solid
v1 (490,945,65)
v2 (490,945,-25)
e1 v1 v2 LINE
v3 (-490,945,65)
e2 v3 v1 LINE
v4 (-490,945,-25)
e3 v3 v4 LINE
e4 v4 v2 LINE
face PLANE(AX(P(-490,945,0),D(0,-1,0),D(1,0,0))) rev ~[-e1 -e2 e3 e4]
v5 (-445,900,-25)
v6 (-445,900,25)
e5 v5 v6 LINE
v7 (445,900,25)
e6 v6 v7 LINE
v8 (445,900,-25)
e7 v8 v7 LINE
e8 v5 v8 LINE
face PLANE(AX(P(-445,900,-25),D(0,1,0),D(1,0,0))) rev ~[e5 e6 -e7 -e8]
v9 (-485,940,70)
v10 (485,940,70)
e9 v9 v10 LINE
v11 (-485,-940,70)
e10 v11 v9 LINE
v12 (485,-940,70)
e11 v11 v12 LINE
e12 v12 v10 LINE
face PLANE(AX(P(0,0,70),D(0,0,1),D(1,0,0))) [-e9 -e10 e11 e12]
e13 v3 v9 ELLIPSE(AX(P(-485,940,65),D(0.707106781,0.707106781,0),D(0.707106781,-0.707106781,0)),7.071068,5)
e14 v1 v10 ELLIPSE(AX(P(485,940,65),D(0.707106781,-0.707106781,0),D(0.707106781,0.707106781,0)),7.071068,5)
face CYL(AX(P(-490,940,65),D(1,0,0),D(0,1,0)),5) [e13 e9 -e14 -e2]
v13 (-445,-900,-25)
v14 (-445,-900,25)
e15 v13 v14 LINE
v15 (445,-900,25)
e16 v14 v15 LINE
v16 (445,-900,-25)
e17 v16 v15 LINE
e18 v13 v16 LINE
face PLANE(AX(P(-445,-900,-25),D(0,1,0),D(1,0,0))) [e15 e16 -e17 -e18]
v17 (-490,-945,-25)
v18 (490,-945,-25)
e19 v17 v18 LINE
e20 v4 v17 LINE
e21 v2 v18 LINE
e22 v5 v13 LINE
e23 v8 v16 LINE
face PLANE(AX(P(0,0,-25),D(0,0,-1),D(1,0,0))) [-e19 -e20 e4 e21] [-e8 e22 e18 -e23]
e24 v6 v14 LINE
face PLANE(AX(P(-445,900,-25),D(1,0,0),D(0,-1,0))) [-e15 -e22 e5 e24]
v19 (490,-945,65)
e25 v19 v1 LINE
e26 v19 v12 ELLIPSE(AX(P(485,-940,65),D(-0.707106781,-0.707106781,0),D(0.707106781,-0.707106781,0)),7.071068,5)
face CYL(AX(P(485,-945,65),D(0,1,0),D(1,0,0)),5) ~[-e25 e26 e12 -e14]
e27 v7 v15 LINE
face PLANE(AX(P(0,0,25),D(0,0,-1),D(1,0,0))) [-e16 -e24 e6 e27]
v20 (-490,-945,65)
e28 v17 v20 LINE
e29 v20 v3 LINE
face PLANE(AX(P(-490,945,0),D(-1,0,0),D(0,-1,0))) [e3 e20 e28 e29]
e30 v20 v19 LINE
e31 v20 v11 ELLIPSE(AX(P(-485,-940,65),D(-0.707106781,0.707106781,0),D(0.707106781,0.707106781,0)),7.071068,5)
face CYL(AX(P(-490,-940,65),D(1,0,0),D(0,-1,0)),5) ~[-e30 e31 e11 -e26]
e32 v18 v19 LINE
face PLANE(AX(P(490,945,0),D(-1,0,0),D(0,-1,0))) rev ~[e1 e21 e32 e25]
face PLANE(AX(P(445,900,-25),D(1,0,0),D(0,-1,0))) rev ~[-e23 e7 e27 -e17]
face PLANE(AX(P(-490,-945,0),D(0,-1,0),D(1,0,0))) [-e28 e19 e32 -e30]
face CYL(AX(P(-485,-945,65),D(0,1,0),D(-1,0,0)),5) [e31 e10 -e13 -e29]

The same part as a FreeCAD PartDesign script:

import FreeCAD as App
import Part
import Sketcher
Q = App.Units.Quantity


def edges_at(feature, points):
    """Names of the edges that pass closest to the given points."""
    edges = feature.Shape.Edges
    near = lambda p: min(range(len(edges)), key=lambda i: edges[i].distToShape(Part.Vertex(*p))[0])
    return sorted({f"Edge{near(p) + 1}" for p in points})


def add_polygon(sketch, points):
    """Adds a closed chain of lines whose ends are joined by coincident constraints."""
    first, n = sketch.GeometryCount, len(points)
    for a, b in zip(points, points[1:] + points[:1]):
        sketch.addGeometry(Part.LineSegment(App.Vector(*a, 0), App.Vector(*b, 0)), False)
    for i in range(n):
        sketch.addConstraint(Sketcher.Constraint("Coincident", first + i, 2, first + (i + 1) % n, 1))

doc = App.newDocument("Part")
body = doc.addObject("PartDesign::Body", "Body")

sketch1 = body.newObject("Sketcher::SketchObject", "Sketch")
sketch1.AttachmentSupport = (doc.getObject("XY_Plane"), [""])
sketch1.MapMode = "FlatFace"
add_polygon(sketch1, [(-490, 945), (-490, -945), (490, -945), (490, 945)])
sketch1.addConstraint([
    Sketcher.Constraint("Vertical", 0),
    Sketcher.Constraint("Horizontal", 1),
    Sketcher.Constraint("Vertical", 2),
    Sketcher.Constraint("Horizontal", 3),
    Sketcher.Constraint("Symmetric", 0, 2, 2, 2, -1, 1),
    Sketcher.Constraint("DistanceX", 1, 1, 1, 2, Q("980 mm")),
    Sketcher.Constraint("DistanceY", 0, 2, 0, 1, Q("1890 mm")),
])
pad1 = body.newObject("PartDesign::Pad", "Pad")
pad1.Profile = sketch1
pad1.Length = 70
doc.recompute()

fillet = body.newObject("PartDesign::Fillet", "Fillet")
fillet.Base = (pad1, edges_at(pad1, [
    (0, 945, 70),
    (-490, 0, 70),
    (0, -945, 70),
    (490, 0, 70),
]))
fillet.Radius = 5

sketch2 = body.newObject("Sketcher::SketchObject", "Sketch001")
sketch2.AttachmentSupport = (doc.getObject("XY_Plane"), [""])
sketch2.MapMode = "FlatFace"
add_polygon(sketch2, [(-490, -945), (-490, 945), (490, 945), (490, -945)])
sketch2.addConstraint([
    Sketcher.Constraint("Vertical", 0),
    Sketcher.Constraint("Horizontal", 1),
    Sketcher.Constraint("Vertical", 2),
    Sketcher.Constraint("Horizontal", 3),
    Sketcher.Constraint("Symmetric", 0, 2, 2, 2, -1, 1),
    Sketcher.Constraint("DistanceX", 1, 1, 1, 2, Q("980 mm")),
    Sketcher.Constraint("DistanceY", 0, 1, 0, 2, Q("1890 mm")),
])
pad2 = body.newObject("PartDesign::Pad", "Pad001")
pad2.Profile = sketch2
pad2.Length = 25
pad2.Reversed = True

sketch3 = body.newObject("Sketcher::SketchObject", "Sketch002")
sketch3.AttachmentSupport = (doc.getObject("XY_Plane"), [""])
sketch3.MapMode = "FlatFace"
sketch3.AttachmentOffset = App.Placement(App.Vector(0, 0, -25), App.Rotation())
add_polygon(sketch3, [(-445, -900), (-445, 900), (445, 900), (445, -900)])
sketch3.addConstraint([
    Sketcher.Constraint("Vertical", 0),
    Sketcher.Constraint("Horizontal", 1),
    Sketcher.Constraint("Vertical", 2),
    Sketcher.Constraint("Horizontal", 3),
    Sketcher.Constraint("Symmetric", 0, 2, 2, 2, -1, 1),
    Sketcher.Constraint("DistanceX", 1, 1, 1, 2, Q("890 mm")),
    Sketcher.Constraint("DistanceY", 0, 1, 0, 2, Q("1800 mm")),
])
pocket1 = body.newObject("PartDesign::Pocket", "Pocket")
pocket1.Profile = sketch3
pocket1.Length = 50
pocket1.Reversed = True

doc.recompute()
